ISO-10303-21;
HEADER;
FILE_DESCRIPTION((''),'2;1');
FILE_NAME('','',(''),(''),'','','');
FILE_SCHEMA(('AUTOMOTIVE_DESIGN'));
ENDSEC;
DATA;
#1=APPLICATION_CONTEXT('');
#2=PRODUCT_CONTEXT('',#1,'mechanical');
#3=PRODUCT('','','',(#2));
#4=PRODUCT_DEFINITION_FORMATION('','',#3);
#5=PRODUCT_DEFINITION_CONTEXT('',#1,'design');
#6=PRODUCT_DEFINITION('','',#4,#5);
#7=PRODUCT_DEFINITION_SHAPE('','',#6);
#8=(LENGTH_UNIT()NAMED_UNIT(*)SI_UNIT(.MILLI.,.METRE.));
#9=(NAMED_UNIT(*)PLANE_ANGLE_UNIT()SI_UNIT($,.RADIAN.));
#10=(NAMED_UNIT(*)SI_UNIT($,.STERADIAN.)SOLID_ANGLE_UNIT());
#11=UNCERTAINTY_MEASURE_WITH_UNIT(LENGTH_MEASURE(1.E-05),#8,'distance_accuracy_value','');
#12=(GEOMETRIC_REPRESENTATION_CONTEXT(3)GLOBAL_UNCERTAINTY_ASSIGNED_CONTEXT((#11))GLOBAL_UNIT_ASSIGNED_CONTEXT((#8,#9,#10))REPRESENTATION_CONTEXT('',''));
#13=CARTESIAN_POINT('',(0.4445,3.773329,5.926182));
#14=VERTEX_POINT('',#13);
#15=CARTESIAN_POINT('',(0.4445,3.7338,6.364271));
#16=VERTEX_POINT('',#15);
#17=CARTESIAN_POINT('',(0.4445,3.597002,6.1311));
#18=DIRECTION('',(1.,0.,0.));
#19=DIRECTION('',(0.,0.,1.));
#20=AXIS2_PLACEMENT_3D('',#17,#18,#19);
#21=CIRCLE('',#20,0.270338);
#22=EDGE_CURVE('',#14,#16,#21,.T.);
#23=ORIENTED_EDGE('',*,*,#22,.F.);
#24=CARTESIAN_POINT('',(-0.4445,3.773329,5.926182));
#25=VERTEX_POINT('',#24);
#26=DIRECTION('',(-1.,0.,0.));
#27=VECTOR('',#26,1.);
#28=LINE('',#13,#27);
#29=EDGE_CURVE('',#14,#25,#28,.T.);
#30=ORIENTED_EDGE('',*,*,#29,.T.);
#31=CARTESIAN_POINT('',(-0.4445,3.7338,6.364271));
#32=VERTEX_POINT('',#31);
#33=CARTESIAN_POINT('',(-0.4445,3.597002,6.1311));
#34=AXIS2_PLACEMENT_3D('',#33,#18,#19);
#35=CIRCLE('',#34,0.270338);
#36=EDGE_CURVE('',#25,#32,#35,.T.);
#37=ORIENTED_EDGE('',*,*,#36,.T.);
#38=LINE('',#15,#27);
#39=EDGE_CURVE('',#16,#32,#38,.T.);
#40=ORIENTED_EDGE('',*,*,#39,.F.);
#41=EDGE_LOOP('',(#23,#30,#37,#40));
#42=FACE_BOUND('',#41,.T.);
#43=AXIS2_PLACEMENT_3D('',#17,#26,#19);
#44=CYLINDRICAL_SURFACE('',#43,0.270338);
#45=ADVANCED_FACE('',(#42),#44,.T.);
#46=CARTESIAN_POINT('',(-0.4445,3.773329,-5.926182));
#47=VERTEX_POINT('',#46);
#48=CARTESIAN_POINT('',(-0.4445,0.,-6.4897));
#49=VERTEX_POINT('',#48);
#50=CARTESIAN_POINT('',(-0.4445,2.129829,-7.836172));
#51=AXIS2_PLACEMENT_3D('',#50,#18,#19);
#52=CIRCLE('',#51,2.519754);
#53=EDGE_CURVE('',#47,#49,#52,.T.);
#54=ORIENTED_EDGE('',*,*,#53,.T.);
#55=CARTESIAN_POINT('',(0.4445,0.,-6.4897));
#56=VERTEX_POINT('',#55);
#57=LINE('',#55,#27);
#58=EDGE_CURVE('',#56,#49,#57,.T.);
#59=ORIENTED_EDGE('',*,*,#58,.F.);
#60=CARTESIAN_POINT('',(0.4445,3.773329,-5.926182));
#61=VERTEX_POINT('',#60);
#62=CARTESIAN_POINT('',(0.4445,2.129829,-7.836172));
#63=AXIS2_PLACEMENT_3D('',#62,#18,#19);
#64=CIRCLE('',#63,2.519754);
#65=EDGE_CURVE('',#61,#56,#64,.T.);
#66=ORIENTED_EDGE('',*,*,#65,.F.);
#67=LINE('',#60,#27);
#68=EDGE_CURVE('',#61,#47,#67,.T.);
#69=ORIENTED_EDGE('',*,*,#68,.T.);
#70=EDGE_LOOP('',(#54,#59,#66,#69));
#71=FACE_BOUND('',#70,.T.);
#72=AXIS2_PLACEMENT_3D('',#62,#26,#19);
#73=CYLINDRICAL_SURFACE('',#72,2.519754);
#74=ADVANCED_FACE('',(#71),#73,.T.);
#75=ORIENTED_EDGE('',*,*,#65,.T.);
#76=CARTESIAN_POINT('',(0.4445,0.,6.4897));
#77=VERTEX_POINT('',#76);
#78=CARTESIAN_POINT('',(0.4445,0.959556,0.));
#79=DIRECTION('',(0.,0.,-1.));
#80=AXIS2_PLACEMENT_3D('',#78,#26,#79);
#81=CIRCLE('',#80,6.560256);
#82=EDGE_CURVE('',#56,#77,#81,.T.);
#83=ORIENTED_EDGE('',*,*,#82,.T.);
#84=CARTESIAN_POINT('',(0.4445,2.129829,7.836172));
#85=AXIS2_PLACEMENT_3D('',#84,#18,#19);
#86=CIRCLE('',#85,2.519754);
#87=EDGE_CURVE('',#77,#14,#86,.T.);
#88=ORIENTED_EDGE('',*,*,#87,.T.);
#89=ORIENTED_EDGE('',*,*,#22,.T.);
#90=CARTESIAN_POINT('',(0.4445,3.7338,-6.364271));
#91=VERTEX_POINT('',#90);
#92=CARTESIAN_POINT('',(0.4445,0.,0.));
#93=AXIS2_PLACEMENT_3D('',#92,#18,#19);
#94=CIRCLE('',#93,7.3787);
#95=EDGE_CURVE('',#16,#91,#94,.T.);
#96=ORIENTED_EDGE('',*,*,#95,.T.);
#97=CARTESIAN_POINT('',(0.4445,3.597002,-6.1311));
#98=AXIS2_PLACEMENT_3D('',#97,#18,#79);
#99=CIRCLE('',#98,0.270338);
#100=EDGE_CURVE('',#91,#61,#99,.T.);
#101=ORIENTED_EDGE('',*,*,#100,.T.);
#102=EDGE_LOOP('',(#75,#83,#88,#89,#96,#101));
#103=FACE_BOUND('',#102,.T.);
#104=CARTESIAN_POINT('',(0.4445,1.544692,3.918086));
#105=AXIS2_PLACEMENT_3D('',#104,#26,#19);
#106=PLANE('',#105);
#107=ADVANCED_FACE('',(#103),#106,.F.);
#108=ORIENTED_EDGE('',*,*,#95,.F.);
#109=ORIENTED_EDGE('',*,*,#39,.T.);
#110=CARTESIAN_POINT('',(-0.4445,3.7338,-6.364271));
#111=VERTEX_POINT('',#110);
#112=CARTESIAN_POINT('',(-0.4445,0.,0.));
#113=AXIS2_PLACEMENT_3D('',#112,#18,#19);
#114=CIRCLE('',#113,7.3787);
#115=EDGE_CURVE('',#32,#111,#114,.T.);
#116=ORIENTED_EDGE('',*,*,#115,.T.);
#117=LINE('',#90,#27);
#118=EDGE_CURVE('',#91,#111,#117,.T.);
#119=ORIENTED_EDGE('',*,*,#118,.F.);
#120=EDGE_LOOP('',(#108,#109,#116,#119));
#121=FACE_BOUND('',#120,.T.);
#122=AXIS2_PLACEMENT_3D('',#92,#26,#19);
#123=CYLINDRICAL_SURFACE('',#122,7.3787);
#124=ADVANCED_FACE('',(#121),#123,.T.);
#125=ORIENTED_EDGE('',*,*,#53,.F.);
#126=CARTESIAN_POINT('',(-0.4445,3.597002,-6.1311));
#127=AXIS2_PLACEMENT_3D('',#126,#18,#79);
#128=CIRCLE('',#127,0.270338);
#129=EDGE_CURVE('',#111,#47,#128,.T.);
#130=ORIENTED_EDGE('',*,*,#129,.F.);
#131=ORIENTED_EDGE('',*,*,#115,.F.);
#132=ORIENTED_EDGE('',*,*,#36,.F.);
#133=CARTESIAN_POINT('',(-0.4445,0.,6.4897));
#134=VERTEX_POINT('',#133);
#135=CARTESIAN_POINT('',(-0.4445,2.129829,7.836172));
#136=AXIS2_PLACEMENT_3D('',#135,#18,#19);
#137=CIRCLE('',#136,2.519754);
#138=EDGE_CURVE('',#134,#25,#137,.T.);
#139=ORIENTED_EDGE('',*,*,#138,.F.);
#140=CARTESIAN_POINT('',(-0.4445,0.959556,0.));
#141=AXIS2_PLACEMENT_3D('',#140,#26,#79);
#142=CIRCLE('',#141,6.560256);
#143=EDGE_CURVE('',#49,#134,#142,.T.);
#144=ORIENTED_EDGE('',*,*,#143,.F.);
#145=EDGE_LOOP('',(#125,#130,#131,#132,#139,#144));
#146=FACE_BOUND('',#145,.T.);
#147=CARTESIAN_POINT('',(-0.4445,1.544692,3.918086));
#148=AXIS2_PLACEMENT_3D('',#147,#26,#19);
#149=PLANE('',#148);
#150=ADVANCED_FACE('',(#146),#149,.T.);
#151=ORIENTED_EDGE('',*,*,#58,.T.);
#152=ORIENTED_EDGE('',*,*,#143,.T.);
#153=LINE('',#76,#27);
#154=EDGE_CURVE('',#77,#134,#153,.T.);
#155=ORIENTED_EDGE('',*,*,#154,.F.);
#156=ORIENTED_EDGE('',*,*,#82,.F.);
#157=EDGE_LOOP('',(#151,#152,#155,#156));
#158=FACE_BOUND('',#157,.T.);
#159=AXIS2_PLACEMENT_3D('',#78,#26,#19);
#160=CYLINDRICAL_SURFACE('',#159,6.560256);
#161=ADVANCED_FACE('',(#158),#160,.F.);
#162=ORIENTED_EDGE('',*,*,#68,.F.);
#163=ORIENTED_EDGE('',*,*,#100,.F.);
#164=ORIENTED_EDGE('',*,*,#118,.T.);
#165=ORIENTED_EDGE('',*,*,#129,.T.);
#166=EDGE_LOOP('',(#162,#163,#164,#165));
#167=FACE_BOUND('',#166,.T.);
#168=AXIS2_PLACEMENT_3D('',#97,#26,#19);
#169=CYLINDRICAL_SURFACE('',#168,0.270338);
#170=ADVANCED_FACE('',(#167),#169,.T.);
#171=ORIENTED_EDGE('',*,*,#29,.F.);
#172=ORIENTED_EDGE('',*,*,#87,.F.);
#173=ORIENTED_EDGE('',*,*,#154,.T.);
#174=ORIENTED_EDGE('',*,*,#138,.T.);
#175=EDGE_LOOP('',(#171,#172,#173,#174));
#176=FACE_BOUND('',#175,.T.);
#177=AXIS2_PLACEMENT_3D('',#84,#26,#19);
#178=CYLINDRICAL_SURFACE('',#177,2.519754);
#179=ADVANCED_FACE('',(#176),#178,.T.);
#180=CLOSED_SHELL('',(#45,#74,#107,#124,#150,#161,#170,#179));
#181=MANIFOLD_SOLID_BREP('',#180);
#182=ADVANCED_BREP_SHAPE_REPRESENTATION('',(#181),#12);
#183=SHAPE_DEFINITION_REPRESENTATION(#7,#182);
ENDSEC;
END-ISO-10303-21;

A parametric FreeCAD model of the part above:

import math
import FreeCAD as App
import Part
import Sketcher

V = App.Vector
Q = App.Units.Quantity

doc = App.newDocument("Part")
params = doc.addObject("Spreadsheet::Sheet", "Params")
for row, (alias, value) in enumerate([
    ("pad1_length", "0.035 in"),
], start=1):
    params.set(f"A{row}", alias)
    params.set(f"B{row}", "=" + value)
    params.setAlias(f"B{row}", alias)

body = doc.addObject("PartDesign::Body", "Body")

# Sketch on YZ plane
sketch1 = doc.addObject("Sketcher::SketchObject", "Sketch")
body.addObject(sketch1)
sketch1.AttachmentSupport = (doc.YZ_Plane, [""])
sketch1.MapMode = "FlatFace"
sketch1.addGeometry(Part.ArcOfCircle(Part.Circle(V(0.96, 0, 0), V(0, 0, 1), 6.56), math.radians(98), math.radians(262)), False)
sketch1.addGeometry(Part.ArcOfCircle(Part.Circle(V(2.13, 7.84, 0), V(0, 0, 1), 2.52), math.radians(-148), math.radians(-49)), False)
sketch1.addGeometry(Part.ArcOfCircle(Part.Circle(V(3.6, 6.13, 0), V(0, 0, 1), 0.27), math.radians(-49), math.radians(60)), False)
sketch1.addGeometry(Part.ArcOfCircle(Part.Circle(V(0, 0, 0), V(0, 0, 1), 7.38), math.radians(60), math.radians(300)), False)
sketch1.addGeometry(Part.ArcOfCircle(Part.Circle(V(3.6, -6.13, 0), V(0, 0, 1), 0.27), math.radians(-60), math.radians(49)), False)
sketch1.addGeometry(Part.ArcOfCircle(Part.Circle(V(2.13, -7.84, 0), V(0, 0, 1), 2.52), math.radians(49), math.radians(148)), False)
sketch1.addConstraint(Sketcher.Constraint("Coincident", 0, 1, 1, 1))
sketch1.addConstraint(Sketcher.Constraint("Tangent", 1, 2, 2, 1))
sketch1.addConstraint(Sketcher.Constraint("Tangent", 2, 2, 3, 1))
sketch1.addConstraint(Sketcher.Constraint("Tangent", 3, 2, 4, 1))
sketch1.addConstraint(Sketcher.Constraint("Tangent", 4, 2, 5, 1))
sketch1.addConstraint(Sketcher.Constraint("Coincident", 5, 2, 0, 2))
sketch1.addConstraint(Sketcher.Constraint("Coincident", 3, 3, -1, 1))
sketch1.addConstraint(Sketcher.Constraint("Equal", 2, 4))
sketch1.addConstraint(Sketcher.Constraint("Equal", 1, 5))
sketch1.addConstraint(Sketcher.Constraint("Symmetric", 0, 1, 5, 2, -1, 1))
sketch1.addConstraint(Sketcher.Constraint("Symmetric", 1, 3, 5, 3, -1))
sketch1.addConstraint(Sketcher.Constraint("Radius", 3, Q("0.2905 in")))
sketch1.addConstraint(Sketcher.Constraint("DistanceX", -1, 1, 2, 2, Q("0.147 in")))
sketch1.addConstraint(Sketcher.Constraint("DistanceY", -1, 1, 0, 1, Q("0.2555 in")))
sketch1.addConstraint(Sketcher.Constraint("Radius", 0, 6.560256))
sketch1.addConstraint(Sketcher.Constraint("Radius", 1, 2.519754))
sketch1.addConstraint(Sketcher.Constraint("Radius", 2, 0.270338))
pad1 = doc.addObject("PartDesign::Pad", "Pad")
body.addObject(pad1)
pad1.Profile = sketch1
pad1.setExpression("Length", "Params.pad1_length")
pad1.Midplane = True

doc.recompute()
